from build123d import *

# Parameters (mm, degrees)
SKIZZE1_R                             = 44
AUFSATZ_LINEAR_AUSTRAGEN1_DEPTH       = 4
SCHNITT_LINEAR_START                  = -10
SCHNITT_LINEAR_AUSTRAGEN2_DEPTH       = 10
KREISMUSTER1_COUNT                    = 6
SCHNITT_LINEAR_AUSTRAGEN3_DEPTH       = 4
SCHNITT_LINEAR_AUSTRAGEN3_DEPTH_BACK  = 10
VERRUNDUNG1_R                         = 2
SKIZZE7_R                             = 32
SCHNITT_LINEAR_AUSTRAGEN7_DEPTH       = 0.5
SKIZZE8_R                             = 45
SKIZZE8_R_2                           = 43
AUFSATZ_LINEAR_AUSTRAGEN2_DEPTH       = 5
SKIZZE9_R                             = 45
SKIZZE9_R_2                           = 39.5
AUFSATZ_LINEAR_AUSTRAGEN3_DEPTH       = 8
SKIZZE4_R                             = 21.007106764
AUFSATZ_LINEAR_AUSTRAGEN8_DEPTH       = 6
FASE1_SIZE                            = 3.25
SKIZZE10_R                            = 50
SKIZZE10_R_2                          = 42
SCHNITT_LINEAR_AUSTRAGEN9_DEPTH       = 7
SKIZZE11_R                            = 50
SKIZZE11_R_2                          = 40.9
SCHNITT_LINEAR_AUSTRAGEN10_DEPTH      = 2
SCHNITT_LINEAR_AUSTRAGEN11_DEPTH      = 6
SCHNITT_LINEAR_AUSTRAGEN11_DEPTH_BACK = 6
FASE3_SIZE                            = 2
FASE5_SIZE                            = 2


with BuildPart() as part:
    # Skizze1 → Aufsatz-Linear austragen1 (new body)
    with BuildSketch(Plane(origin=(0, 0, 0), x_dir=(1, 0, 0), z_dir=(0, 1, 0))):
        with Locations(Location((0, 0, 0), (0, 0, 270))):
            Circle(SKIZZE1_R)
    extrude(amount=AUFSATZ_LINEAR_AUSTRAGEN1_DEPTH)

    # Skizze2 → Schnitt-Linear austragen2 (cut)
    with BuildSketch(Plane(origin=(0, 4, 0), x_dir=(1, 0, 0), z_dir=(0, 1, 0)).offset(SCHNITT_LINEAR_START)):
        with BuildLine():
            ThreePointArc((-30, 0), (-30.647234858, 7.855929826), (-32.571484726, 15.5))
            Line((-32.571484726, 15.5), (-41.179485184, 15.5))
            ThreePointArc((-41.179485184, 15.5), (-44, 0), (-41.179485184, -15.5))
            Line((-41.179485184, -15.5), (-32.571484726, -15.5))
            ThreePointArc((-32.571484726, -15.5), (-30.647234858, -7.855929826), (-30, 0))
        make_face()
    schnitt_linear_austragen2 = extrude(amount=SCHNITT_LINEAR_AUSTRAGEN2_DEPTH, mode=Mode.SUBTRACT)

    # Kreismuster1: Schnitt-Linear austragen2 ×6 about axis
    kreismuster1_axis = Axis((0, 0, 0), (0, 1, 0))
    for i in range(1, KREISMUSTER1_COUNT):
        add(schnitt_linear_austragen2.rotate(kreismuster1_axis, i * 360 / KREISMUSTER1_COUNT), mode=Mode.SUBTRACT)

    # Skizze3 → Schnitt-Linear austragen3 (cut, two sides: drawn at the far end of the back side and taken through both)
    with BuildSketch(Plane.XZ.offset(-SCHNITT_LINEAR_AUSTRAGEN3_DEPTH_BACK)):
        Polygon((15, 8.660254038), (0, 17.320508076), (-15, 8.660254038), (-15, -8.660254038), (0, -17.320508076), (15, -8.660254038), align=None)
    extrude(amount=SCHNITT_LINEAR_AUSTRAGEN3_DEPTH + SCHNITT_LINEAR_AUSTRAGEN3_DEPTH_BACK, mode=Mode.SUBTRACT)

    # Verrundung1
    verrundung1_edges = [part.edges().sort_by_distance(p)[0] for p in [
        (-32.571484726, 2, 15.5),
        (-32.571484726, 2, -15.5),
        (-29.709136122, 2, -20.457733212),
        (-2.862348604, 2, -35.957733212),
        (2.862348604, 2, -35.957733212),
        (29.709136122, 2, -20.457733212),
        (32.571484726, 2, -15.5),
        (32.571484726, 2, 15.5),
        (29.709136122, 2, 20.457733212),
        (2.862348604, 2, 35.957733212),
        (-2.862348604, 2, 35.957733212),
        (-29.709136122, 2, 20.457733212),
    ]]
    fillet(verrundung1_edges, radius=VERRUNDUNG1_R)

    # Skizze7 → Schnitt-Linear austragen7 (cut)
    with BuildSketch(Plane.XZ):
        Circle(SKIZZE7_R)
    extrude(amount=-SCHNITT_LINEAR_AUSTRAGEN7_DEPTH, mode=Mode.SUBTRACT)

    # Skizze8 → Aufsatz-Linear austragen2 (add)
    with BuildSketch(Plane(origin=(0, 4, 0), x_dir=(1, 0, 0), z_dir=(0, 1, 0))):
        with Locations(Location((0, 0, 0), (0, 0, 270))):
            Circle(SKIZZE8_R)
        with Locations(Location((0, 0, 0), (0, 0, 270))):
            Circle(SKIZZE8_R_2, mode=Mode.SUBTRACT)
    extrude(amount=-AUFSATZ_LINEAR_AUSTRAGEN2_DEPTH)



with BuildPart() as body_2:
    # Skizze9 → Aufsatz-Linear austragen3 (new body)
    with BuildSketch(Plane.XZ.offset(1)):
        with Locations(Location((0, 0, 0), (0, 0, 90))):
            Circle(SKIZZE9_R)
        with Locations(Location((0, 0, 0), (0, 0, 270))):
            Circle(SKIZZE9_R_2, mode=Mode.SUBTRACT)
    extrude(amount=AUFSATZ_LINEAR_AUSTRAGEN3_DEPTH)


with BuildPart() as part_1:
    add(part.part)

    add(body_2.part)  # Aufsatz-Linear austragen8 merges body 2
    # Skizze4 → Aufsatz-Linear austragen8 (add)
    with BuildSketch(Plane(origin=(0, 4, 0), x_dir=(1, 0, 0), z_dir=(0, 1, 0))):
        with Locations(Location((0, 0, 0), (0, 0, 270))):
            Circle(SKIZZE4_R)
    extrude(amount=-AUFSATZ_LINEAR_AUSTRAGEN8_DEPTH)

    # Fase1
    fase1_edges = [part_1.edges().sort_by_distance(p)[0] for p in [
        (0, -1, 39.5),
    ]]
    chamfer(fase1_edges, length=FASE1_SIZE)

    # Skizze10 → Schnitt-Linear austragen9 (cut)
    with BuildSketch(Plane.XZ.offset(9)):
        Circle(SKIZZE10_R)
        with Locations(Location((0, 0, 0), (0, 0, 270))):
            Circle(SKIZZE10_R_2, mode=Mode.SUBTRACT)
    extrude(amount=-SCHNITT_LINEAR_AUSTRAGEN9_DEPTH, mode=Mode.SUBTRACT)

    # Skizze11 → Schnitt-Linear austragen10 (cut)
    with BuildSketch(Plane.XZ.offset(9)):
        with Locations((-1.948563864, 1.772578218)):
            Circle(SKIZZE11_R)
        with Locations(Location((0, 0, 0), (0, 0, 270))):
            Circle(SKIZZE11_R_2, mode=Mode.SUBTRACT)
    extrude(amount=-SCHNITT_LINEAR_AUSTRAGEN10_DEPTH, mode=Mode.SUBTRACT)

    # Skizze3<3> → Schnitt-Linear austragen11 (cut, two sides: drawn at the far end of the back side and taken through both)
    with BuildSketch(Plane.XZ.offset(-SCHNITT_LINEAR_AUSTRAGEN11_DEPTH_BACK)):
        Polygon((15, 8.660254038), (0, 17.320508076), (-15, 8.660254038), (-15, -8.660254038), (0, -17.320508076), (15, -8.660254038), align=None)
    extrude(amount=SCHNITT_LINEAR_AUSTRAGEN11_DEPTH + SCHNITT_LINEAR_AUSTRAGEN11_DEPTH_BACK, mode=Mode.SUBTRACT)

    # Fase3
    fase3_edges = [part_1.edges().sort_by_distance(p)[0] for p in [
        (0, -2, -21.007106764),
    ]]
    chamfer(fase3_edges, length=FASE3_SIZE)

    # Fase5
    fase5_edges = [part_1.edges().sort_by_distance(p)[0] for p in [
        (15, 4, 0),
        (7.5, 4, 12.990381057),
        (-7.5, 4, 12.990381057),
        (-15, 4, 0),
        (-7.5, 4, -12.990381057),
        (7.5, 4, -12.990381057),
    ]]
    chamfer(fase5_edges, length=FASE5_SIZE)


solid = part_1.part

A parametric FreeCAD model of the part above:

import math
import FreeCAD as App
import Part
import Sketcher
Q = App.Units.Quantity


def edges_at(feature, points):
    """Names of the edges that pass closest to the given points."""
    edges = feature.Shape.Edges
    near = lambda p: min(range(len(edges)), key=lambda i: edges[i].distToShape(Part.Vertex(*p))[0])
    return sorted({f"Edge{near(p) + 1}" for p in points})

doc = App.newDocument("Part")
body = doc.addObject("PartDesign::Body", "Body")

# Sketch on XZ plane
sketch1 = body.newObject("Sketcher::SketchObject", "Sketch")
sketch1.AttachmentSupport = (doc.getObject("XZ_Plane"), [""])
sketch1.MapMode = "FlatFace"
sketch1.addGeometry(Part.Circle(App.Vector(0, 0, 0), App.Vector(0, 0, 1), 44), False)
sketch1.addConstraint([
    Sketcher.Constraint("Coincident", 0, 3, -1, 1),
    Sketcher.Constraint("Diameter", 0, Q("88 mm")),
])
pad1 = body.newObject("PartDesign::Pad", "Pad")
pad1.Profile = sketch1
pad1.Length = 4
pad1.Reversed = True

# Sketch on XZ plane
sketch2 = body.newObject("Sketcher::SketchObject", "Sketch001")
sketch2.AttachmentSupport = (doc.getObject("XZ_Plane"), [""])
sketch2.MapMode = "FlatFace"
sketch2.AttachmentOffset = App.Placement(App.Vector(0, 0, 6), App.Rotation())
sketch2.addGeometry([
    Part.ArcOfCircle(Part.Circle(App.Vector(-78, 0, 0), App.Vector(0, 0, 1), 48), math.radians(-18.84), math.radians(0)),  # 0
    Part.LineSegment(App.Vector(-33, -16, 0), App.Vector(-41, -16, 0)),  # 1
    Part.ArcOfCircle(Part.Circle(App.Vector(0, 0, 0), App.Vector(0, 0, 1), 44), math.radians(159), math.radians(201)),  # 2
    Part.LineSegment(App.Vector(-41, 16, 0), App.Vector(-33, 16, 0)),  # 3
    Part.ArcOfCircle(Part.Circle(App.Vector(-78, 0, 0), App.Vector(0, 0, 1), 48), math.radians(0), math.radians(18.84)),  # 4
], False)
sketch2.addConstraint([
    Sketcher.Constraint("Coincident", 0, 1, 1, 1),
    Sketcher.Constraint("Coincident", 1, 2, 2, 2),
    Sketcher.Constraint("Coincident", 2, 1, 3, 1),
    Sketcher.Constraint("Coincident", 3, 2, 4, 2),
    Sketcher.Constraint("Tangent", 4, 1, 0, 2),
    Sketcher.Constraint("Horizontal", 1),
    Sketcher.Constraint("Horizontal", 3),
    Sketcher.Constraint("Coincident", 2, 3, -1, 1),
    Sketcher.Constraint("Equal", 0, 4),
    Sketcher.Constraint("Symmetric", 0, 1, 3, 2, -1),
    Sketcher.Constraint("PointOnObject", 4, 1, -1),
    Sketcher.Constraint("Radius", 0, Q("48 mm")),
    Sketcher.Constraint("Radius", 2, Q("44 mm")),
    Sketcher.Constraint("DistanceX", 0, 3, -1, 1, Q("78 mm")),
    Sketcher.Constraint("DistanceY", 1, 2, 2, 1, Q("31 mm")),
])
pocket1 = body.newObject("PartDesign::Pocket", "Pocket")
pocket1.Profile = sketch2
pocket1.Length = 10
doc.recompute()

polarpattern = body.newObject("PartDesign::PolarPattern", "PolarPattern")
polarpattern.Originals = [pocket1]
polarpattern.Axis = (doc.getObject("Y_Axis"), [""])
polarpattern.Angle = 360
polarpattern.Occurrences = 6
body.Tip = polarpattern

# Sketch on XZ plane
sketch3 = body.newObject("Sketcher::SketchObject", "Sketch002")
sketch3.AttachmentSupport = (doc.getObject("XZ_Plane"), [""])
sketch3.MapMode = "FlatFace"
sketch3.addGeometry([
    Part.LineSegment(App.Vector(15, 9, 0), App.Vector(0, 17, 0)),  # 0
    Part.LineSegment(App.Vector(0, 17, 0), App.Vector(-15, 9, 0)),  # 1
    Part.LineSegment(App.Vector(-15, 9, 0), App.Vector(-15, -9, 0)),  # 2
    Part.LineSegment(App.Vector(-15, -9, 0), App.Vector(0, -17, 0)),  # 3
    Part.LineSegment(App.Vector(0, -17, 0), App.Vector(15, -9, 0)),  # 4
    Part.LineSegment(App.Vector(15, -9, 0), App.Vector(15, 9, 0)),  # 5
], False)
sketch3.addConstraint([
    Sketcher.Constraint("Coincident", 0, 2, 1, 1),
    Sketcher.Constraint("Coincident", 1, 2, 2, 1),
    Sketcher.Constraint("Coincident", 2, 2, 3, 1),
    Sketcher.Constraint("Coincident", 3, 2, 4, 1),
    Sketcher.Constraint("Coincident", 4, 2, 5, 1),
    Sketcher.Constraint("Coincident", 5, 2, 0, 1),
    Sketcher.Constraint("Vertical", 2),
    Sketcher.Constraint("Vertical", 5),
    Sketcher.Constraint("Symmetric", 0, 2, 3, 2, -1, 1),
    Sketcher.Constraint("Symmetric", 1, 2, 4, 2, -1, 1),
    Sketcher.Constraint("PointOnObject", 0, 2, -2),
    Sketcher.Constraint("Parallel", 0, 3),
    Sketcher.Constraint("Horizontal", 2, 2, 4, 2),
    Sketcher.Constraint("Angle", 0, Q("150 deg")),
    Sketcher.Constraint("DistanceX", 1, 2, -1, 1, Q("15 mm")),
    Sketcher.Constraint("DistanceY", 2, 2, 2, 1, Q("17.320508 mm")),
])
pocket2 = body.newObject("PartDesign::Pocket", "Pocket001")
pocket2.Profile = sketch3
pocket2.Type = "ThroughAll"
pocket2.Midplane = True
doc.recompute()

fillet = body.newObject("PartDesign::Fillet", "Fillet")
fillet.Base = (pocket2, edges_at(pocket2, [
    (-32.571, 2, 15.5),
    (-32.571, 2, -15.5),
    (-29.709, 2, -20.458),
    (-2.862, 2, -35.958),
    (2.862, 2, -35.958),
    (29.709, 2, -20.458),
    (32.571, 2, -15.5),
    (32.571, 2, 15.5),
    (29.709, 2, 20.458),
    (2.862, 2, 35.958),
    (-2.862, 2, 35.958),
    (-29.709, 2, 20.458),
]))
fillet.Radius = 2

# Sketch on XZ plane
sketch4 = body.newObject("Sketcher::SketchObject", "Sketch003")
sketch4.AttachmentSupport = (doc.getObject("XZ_Plane"), [""])
sketch4.MapMode = "FlatFace"
sketch4.addGeometry(Part.Circle(App.Vector(0, 0, 0), App.Vector(0, 0, 1), 32), False)
sketch4.addConstraint([
    Sketcher.Constraint("Coincident", 0, 3, -1, 1),
    Sketcher.Constraint("Diameter", 0, Q("64 mm")),
])
pocket3 = body.newObject("PartDesign::Pocket", "Pocket002")
pocket3.Profile = sketch4
pocket3.Length = 0.5

# Sketch on XZ plane
sketch5 = body.newObject("Sketcher::SketchObject", "Sketch004")
sketch5.AttachmentSupport = (doc.getObject("XZ_Plane"), [""])
sketch5.MapMode = "FlatFace"
sketch5.AttachmentOffset = App.Placement(App.Vector(0, 0, -4), App.Rotation())
sketch5.addGeometry([
    Part.Circle(App.Vector(0, 0, 0), App.Vector(0, 0, 1), 45),
    Part.Circle(App.Vector(0, 0, 0), App.Vector(0, 0, 1), 43),
], False)
sketch5.addConstraint([
    Sketcher.Constraint("Coincident", 0, 3, -1, 1),
    Sketcher.Constraint("Coincident", 1, 3, -1, 1),
    Sketcher.Constraint("Diameter", 0, Q("90 mm")),
    Sketcher.Constraint("Diameter", 1, Q("86 mm")),
])
pad2 = body.newObject("PartDesign::Pad", "Pad001")
pad2.Profile = sketch5
pad2.Length = 5
body2 = doc.addObject("PartDesign::Body", "Body001")

# Sketch on XZ plane
sketch6 = body2.newObject("Sketcher::SketchObject", "Sketch005")
sketch6.AttachmentSupport = (doc.getObject("XZ_Plane001"), [""])
sketch6.MapMode = "FlatFace"
sketch6.AttachmentOffset = App.Placement(App.Vector(0, 0, 1), App.Rotation())
sketch6.addGeometry([
    Part.Circle(App.Vector(0, 0, 0), App.Vector(0, 0, 1), 45),
    Part.Circle(App.Vector(0, 0, 0), App.Vector(0, 0, 1), 40),
], False)
sketch6.addConstraint([
    Sketcher.Constraint("Coincident", 0, 3, -1, 1),
    Sketcher.Constraint("Coincident", 1, 3, -1, 1),
    Sketcher.Constraint("Diameter", 0, Q("90 mm")),
    Sketcher.Constraint("Diameter", 1, Q("79 mm")),
])
pad3 = body2.newObject("PartDesign::Pad", "Pad002")
pad3.Profile = sketch6
pad3.Length = 8
doc.recompute()

boolean = body.newObject("PartDesign::Boolean", "Boolean")
boolean.Type = "Fuse"
boolean.addObjects([body2])

# Sketch on XZ plane
sketch7 = body.newObject("Sketcher::SketchObject", "Sketch006")
sketch7.AttachmentSupport = (doc.getObject("XZ_Plane"), [""])
sketch7.MapMode = "FlatFace"
sketch7.AttachmentOffset = App.Placement(App.Vector(0, 0, -4), App.Rotation())
sketch7.addGeometry(Part.Circle(App.Vector(0, 0, 0), App.Vector(0, 0, 1), 21), False)
sketch7.addConstraint([
    Sketcher.Constraint("Coincident", 0, 3, -1, 1),
    Sketcher.Constraint("Diameter", 0, Q("42.014214 mm")),
])
pad4 = body.newObject("PartDesign::Pad", "Pad003")
pad4.Profile = sketch7
pad4.Length = 6
doc.recompute()

chamfer = body.newObject("PartDesign::Chamfer", "Chamfer")
chamfer.Base = (pad4, edges_at(pad4, [(0, -1, 39.5)]))
chamfer.Size = 3.25

# Sketch on XZ plane
sketch8 = body.newObject("Sketcher::SketchObject", "Sketch007")
sketch8.AttachmentSupport = (doc.getObject("XZ_Plane"), [""])
sketch8.MapMode = "FlatFace"
sketch8.AttachmentOffset = App.Placement(App.Vector(0, 0, 9), App.Rotation())
sketch8.addGeometry([
    Part.Circle(App.Vector(0, 0, 0), App.Vector(0, 0, 1), 50),
    Part.Circle(App.Vector(0, 0, 0), App.Vector(0, 0, 1), 42),
], False)
sketch8.addConstraint([
    Sketcher.Constraint("Coincident", 0, 3, -1, 1),
    Sketcher.Constraint("Coincident", 1, 3, -1, 1),
    Sketcher.Constraint("Diameter", 0, Q("100 mm")),
    Sketcher.Constraint("Diameter", 1, Q("84 mm")),
])
pocket4 = body.newObject("PartDesign::Pocket", "Pocket003")
pocket4.Profile = sketch8
pocket4.Length = 7

# Sketch on XZ plane
sketch9 = body.newObject("Sketcher::SketchObject", "Sketch008")
sketch9.AttachmentSupport = (doc.getObject("XZ_Plane"), [""])
sketch9.MapMode = "FlatFace"
sketch9.AttachmentOffset = App.Placement(App.Vector(0, 0, 9), App.Rotation())
sketch9.addGeometry([
    Part.Circle(App.Vector(-2, 2, 0), App.Vector(0, 0, 1), 50),
    Part.Circle(App.Vector(0, 0, 0), App.Vector(0, 0, 1), 41),
], False)
sketch9.addConstraint([
    Sketcher.Constraint("Coincident", 1, 3, -1, 1),
    Sketcher.Constraint("Diameter", 0, Q("100 mm")),
    Sketcher.Constraint("Diameter", 1, Q("81.8 mm")),
    Sketcher.Constraint("DistanceY", -1, 1, 0, 3, Q("1.772578 mm")),
    Sketcher.Constraint("DistanceX", 0, 3, -1, 1, Q("1.948564 mm")),
])
pocket5 = body.newObject("PartDesign::Pocket", "Pocket004")
pocket5.Profile = sketch9
pocket5.Length = 2

# Sketch on XZ plane
sketch10 = body.newObject("Sketcher::SketchObject", "Sketch009")
sketch10.AttachmentSupport = (doc.getObject("XZ_Plane"), [""])
sketch10.MapMode = "FlatFace"
sketch10.addGeometry([
    Part.LineSegment(App.Vector(15, 9, 0), App.Vector(0, 17, 0)),  # 0
    Part.LineSegment(App.Vector(0, 17, 0), App.Vector(-15, 9, 0)),  # 1
    Part.LineSegment(App.Vector(-15, 9, 0), App.Vector(-15, -9, 0)),  # 2
    Part.LineSegment(App.Vector(-15, -9, 0), App.Vector(0, -17, 0)),  # 3
    Part.LineSegment(App.Vector(0, -17, 0), App.Vector(15, -9, 0)),  # 4
    Part.LineSegment(App.Vector(15, -9, 0), App.Vector(15, 9, 0)),  # 5
], False)
sketch10.addConstraint([
    Sketcher.Constraint("Coincident", 0, 2, 1, 1),
    Sketcher.Constraint("Coincident", 1, 2, 2, 1),
    Sketcher.Constraint("Coincident", 2, 2, 3, 1),
    Sketcher.Constraint("Coincident", 3, 2, 4, 1),
    Sketcher.Constraint("Coincident", 4, 2, 5, 1),
    Sketcher.Constraint("Coincident", 5, 2, 0, 1),
    Sketcher.Constraint("Vertical", 2),
    Sketcher.Constraint("Vertical", 5),
    Sketcher.Constraint("Symmetric", 0, 2, 3, 2, -1, 1),
    Sketcher.Constraint("Symmetric", 1, 2, 4, 2, -1, 1),
    Sketcher.Constraint("PointOnObject", 0, 2, -2),
    Sketcher.Constraint("Parallel", 0, 3),
    Sketcher.Constraint("Horizontal", 2, 2, 4, 2),
    Sketcher.Constraint("Angle", 0, Q("150 deg")),
    Sketcher.Constraint("DistanceX", 1, 2, -1, 1, Q("15 mm")),
    Sketcher.Constraint("DistanceY", 2, 2, 2, 1, Q("17.320508 mm")),
])
pocket6 = body.newObject("PartDesign::Pocket", "Pocket005")
pocket6.Profile = sketch10
pocket6.Type = "ThroughAll"
pocket6.Midplane = True
doc.recompute()

chamfer2 = body.newObject("PartDesign::Chamfer", "Chamfer001")
chamfer2.Base = (pocket6, edges_at(pocket6, [(0, -2, -21.007)]))
chamfer2.Size = 2
doc.recompute()

chamfer3 = body.newObject("PartDesign::Chamfer", "Chamfer002")
chamfer3.Base = (chamfer2, edges_at(chamfer2, [
    (15, 4, 0),
    (7.5, 4, 12.99),
    (-7.5, 4, 12.99),
    (-15, 4, 0),
    (-7.5, 4, -12.99),
    (7.5, 4, -12.99),
]))
chamfer3.Size = 2

doc.recompute()
